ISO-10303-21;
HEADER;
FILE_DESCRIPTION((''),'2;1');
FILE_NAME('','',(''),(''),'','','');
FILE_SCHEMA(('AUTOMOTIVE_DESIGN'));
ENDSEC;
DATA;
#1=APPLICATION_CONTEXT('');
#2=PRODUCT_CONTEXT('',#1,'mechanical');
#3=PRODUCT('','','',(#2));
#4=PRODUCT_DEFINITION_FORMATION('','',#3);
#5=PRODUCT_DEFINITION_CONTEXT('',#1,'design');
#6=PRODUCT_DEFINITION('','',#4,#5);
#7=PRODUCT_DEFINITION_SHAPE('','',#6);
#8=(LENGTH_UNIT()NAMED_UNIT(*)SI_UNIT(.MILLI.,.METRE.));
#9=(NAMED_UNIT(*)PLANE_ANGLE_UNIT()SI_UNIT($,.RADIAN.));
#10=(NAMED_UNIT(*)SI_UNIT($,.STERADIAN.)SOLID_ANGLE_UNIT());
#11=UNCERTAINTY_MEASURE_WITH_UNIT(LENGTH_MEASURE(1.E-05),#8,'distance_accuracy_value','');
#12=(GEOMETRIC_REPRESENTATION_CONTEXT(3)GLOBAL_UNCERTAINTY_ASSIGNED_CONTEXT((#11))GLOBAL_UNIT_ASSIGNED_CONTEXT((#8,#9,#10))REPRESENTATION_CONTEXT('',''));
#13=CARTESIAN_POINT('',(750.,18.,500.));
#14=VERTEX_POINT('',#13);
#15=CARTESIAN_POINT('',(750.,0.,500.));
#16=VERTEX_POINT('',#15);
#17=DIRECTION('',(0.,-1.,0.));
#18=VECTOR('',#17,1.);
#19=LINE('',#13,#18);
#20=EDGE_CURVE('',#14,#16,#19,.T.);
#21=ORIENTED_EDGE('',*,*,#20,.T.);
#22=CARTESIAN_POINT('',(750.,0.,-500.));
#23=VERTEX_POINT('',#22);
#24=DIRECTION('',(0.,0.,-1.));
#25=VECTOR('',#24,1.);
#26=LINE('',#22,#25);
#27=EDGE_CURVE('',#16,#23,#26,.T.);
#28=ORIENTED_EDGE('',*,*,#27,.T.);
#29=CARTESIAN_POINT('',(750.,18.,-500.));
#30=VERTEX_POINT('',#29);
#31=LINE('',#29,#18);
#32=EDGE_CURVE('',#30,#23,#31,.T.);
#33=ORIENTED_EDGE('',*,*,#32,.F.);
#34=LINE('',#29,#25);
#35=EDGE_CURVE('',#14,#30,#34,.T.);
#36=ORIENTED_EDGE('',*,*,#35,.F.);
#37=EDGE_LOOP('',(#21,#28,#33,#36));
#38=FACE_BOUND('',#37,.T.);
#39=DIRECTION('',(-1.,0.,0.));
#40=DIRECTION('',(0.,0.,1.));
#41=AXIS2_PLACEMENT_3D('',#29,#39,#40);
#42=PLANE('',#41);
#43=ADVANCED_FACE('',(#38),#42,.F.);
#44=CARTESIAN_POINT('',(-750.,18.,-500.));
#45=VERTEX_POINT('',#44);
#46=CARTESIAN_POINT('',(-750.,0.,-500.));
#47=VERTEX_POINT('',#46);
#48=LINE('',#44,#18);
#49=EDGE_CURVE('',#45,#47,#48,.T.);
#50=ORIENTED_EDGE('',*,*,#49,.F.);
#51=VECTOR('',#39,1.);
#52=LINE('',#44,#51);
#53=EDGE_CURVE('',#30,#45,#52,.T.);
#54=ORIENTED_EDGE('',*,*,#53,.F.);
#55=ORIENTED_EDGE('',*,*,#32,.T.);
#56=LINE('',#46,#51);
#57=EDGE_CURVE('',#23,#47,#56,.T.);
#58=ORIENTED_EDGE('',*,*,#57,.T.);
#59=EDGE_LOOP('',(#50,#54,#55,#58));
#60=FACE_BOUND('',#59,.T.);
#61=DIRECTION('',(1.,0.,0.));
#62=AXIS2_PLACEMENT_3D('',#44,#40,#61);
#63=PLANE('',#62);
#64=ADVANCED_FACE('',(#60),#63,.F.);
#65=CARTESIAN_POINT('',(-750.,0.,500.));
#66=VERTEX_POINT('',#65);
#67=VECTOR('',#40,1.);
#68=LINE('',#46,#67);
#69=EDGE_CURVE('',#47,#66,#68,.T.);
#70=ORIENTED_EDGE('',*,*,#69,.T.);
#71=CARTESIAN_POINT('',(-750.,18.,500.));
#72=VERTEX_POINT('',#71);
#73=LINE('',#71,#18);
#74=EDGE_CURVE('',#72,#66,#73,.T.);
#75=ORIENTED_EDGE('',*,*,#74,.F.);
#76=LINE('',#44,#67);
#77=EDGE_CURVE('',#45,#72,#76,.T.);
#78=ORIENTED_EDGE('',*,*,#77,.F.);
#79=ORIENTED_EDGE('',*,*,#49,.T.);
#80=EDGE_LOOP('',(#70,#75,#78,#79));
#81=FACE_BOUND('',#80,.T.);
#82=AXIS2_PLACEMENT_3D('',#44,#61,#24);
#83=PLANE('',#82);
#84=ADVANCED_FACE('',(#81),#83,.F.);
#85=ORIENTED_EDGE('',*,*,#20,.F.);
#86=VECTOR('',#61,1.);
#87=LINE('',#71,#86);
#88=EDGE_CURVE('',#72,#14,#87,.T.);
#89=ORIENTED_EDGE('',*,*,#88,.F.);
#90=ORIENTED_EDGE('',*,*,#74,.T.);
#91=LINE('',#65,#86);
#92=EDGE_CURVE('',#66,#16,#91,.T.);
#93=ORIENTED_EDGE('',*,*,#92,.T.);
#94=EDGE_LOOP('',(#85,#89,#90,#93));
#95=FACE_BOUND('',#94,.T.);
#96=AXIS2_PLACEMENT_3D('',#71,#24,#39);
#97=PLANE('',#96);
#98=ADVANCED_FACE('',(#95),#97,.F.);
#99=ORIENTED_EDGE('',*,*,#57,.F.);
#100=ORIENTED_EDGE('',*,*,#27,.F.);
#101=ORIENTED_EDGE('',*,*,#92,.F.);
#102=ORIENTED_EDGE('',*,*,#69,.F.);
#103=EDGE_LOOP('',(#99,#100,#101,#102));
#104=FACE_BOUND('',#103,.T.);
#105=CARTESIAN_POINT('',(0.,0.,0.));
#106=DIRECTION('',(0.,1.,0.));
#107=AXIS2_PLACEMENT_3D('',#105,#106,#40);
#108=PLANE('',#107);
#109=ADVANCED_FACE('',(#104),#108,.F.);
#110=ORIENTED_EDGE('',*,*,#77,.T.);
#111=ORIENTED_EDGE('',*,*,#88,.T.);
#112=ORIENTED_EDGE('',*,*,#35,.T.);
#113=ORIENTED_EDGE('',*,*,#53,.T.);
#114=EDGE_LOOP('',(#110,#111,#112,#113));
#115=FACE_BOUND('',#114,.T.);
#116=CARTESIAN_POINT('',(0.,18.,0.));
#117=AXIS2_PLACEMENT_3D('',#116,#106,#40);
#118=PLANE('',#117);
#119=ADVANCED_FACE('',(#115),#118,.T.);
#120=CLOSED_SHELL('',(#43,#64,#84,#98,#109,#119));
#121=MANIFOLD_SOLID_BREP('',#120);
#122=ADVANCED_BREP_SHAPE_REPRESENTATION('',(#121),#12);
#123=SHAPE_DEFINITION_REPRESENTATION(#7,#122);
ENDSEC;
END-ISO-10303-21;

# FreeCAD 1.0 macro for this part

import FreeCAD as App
import Part
import Sketcher
Q = App.Units.Quantity


def add_polygon(sketch, points):
    """Adds a closed chain of lines whose ends are joined by coincident constraints."""
    first, n = sketch.GeometryCount, len(points)
    for a, b in zip(points, points[1:] + points[:1]):
        sketch.addGeometry(Part.LineSegment(App.Vector(*a, 0), App.Vector(*b, 0)), False)
    for i in range(n):
        sketch.addConstraint(Sketcher.Constraint("Coincident", first + i, 2, first + (i + 1) % n, 1))

doc = App.newDocument("Part")
body = doc.addObject("PartDesign::Body", "Body")

# Sketch on XZ plane
sketch1 = body.newObject("Sketcher::SketchObject", "Sketch")
sketch1.AttachmentSupport = (doc.getObject("XZ_Plane"), [""])
sketch1.MapMode = "FlatFace"
add_polygon(sketch1, [(-750, -500), (-750, 500), (750, 500), (750, -500)])  # lines 0-3
sketch1.addConstraint(Sketcher.Constraint("Vertical", 0))
sketch1.addConstraint(Sketcher.Constraint("Horizontal", 1))
sketch1.addConstraint(Sketcher.Constraint("Vertical", 2))
sketch1.addConstraint(Sketcher.Constraint("Horizontal", 3))
sketch1.addConstraint(Sketcher.Constraint("Symmetric", 0, 2, 2, 2, -1, 1))
sketch1.addConstraint(Sketcher.Constraint("DistanceX", 1, 1, 1, 2, Q("1500 mm")))
sketch1.addConstraint(Sketcher.Constraint("DistanceY", 0, 1, 0, 2, Q("1000 mm")))
pad1 = body.newObject("PartDesign::Pad", "Pad")
pad1.Profile = sketch1
pad1.Length = 18
pad1.Reversed = True

doc.recompute()
